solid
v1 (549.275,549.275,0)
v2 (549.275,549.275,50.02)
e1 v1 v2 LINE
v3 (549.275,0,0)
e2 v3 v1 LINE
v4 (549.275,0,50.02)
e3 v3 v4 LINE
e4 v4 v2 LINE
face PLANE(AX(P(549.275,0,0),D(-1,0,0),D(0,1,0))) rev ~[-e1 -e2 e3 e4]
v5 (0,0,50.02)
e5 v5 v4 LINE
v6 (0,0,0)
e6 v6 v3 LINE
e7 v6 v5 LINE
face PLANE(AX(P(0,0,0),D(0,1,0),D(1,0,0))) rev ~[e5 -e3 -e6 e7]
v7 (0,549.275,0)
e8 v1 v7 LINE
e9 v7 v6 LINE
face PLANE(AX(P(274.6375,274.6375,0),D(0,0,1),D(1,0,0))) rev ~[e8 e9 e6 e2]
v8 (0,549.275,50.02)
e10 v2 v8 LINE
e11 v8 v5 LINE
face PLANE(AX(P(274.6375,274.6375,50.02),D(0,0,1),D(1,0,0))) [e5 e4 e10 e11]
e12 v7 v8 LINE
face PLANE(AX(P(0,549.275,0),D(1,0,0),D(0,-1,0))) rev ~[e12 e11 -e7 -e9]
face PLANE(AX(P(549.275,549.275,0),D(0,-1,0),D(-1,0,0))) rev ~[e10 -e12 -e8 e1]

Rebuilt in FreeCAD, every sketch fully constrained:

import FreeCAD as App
import Part
import Sketcher

V = App.Vector
Q = App.Units.Quantity

doc = App.newDocument("Part")
params = doc.addObject("Spreadsheet::Sheet", "Params")
for row, (alias, value) in enumerate([
    ("sketch1_width", "21.625 in"),
    ("pad1_length", "1.9692913 in"),
], start=1):
    params.set(f"A{row}", alias)
    params.set(f"B{row}", "=" + value)
    params.setAlias(f"B{row}", alias)

body = doc.addObject("PartDesign::Body", "Body")

sketch1 = body.newObject("Sketcher::SketchObject", "Sketch")
sketch1.AttachmentSupport = (doc.getObject("XY_Plane"), [""])
sketch1.MapMode = "FlatFace"
sketch1.addGeometry(Part.LineSegment(V(0, 549.275, 0), V(0, 0, 0)), False)
sketch1.addGeometry(Part.LineSegment(V(0, 0, 0), V(549.275, 0, 0)), False)
sketch1.addGeometry(Part.LineSegment(V(549.275, 0, 0), V(549.275, 549.275, 0)), False)
sketch1.addGeometry(Part.LineSegment(V(549.275, 549.275, 0), V(0, 549.275, 0)), False)
sketch1.addConstraint(Sketcher.Constraint("Coincident", 0, 2, 1, 1))
sketch1.addConstraint(Sketcher.Constraint("Coincident", 1, 2, 2, 1))
sketch1.addConstraint(Sketcher.Constraint("Coincident", 2, 2, 3, 1))
sketch1.addConstraint(Sketcher.Constraint("Coincident", 3, 2, 0, 1))
sketch1.addConstraint(Sketcher.Constraint("Vertical", 0))
sketch1.addConstraint(Sketcher.Constraint("Horizontal", 1))
sketch1.addConstraint(Sketcher.Constraint("Vertical", 2))
sketch1.addConstraint(Sketcher.Constraint("Horizontal", 3))
sketch1.addConstraint(Sketcher.Constraint("Coincident", 0, 2, -1, 1))
sketch1.addConstraint(Sketcher.Constraint("Equal", 3, 0))
sketch1.addConstraint(Sketcher.Constraint("DistanceX", 1, 1, 1, 2, Q("21.625 in")))
sketch1.setExpression("Constraints[10]", "Params.sketch1_width")
pad1 = body.newObject("PartDesign::Pad", "Pad")
pad1.Profile = sketch1
pad1.setExpression("Length", "Params.pad1_length")

doc.recompute()
